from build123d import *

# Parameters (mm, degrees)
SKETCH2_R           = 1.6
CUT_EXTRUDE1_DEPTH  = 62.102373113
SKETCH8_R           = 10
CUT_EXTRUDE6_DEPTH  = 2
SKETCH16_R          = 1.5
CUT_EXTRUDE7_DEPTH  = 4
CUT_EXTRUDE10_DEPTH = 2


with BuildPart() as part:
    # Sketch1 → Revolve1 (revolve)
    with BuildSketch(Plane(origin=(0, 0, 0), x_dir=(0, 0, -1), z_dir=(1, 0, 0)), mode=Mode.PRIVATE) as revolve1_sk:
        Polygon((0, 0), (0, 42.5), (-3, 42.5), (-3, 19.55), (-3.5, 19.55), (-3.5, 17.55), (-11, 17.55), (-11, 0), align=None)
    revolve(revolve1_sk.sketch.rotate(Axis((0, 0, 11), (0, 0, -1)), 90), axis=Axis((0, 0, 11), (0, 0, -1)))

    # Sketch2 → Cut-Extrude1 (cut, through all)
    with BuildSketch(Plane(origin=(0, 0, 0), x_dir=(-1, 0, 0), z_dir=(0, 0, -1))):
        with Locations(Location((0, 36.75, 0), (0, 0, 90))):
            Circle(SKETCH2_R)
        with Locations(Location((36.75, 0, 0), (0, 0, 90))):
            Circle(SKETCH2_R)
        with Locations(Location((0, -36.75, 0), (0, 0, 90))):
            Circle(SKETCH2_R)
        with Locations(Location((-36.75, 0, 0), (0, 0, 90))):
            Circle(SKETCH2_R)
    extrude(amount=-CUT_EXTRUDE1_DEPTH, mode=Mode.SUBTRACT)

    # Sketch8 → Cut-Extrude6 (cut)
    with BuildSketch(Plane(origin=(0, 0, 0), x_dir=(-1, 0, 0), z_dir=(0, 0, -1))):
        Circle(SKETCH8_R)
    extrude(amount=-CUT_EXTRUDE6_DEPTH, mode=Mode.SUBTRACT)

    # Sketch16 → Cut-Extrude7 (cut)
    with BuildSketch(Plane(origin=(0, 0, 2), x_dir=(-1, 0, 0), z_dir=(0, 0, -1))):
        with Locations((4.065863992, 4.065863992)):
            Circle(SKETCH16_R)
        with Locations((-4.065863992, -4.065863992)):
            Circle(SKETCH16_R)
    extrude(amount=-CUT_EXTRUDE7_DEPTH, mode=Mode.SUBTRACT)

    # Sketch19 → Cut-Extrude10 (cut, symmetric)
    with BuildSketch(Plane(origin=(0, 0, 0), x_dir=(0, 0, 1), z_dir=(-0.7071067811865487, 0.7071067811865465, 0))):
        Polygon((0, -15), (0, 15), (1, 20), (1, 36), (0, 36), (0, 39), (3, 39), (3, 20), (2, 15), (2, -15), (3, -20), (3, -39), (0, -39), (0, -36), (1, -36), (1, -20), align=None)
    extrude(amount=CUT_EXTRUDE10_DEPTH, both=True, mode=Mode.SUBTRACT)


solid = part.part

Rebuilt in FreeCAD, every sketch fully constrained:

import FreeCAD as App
import Part
import Sketcher
from FreeCAD import Vector
Q = App.Units.Quantity

doc = App.newDocument("Part")
params = doc.addObject("Spreadsheet::Sheet", "Params")
for row, (alias, value) in enumerate([
    ("sketch1_width", "2 mm"),
    ("sketch1_height", "3 mm"),
    ("sketch1_height2", "11 mm"),
    ("sketch1_width2", "42.5 mm"),
    ("sketch1_height3", "0.5 mm"),
    ("revolution_angle", "360 deg"),
    ("sketch2_diameter", "3.2 mm"),
    ("sketch3_diameter", "20 mm"),
    ("pocket2_length", "2 mm"),
    ("sketch4_diameter", "3 mm"),
    ("pocket3_length", "4 mm"),
    ("sketch5_width", "1 mm"),
    ("sketch5_width2", "3 mm"),
    ("sketch5_height", "30 mm"),
    ("sketch5_height2", "16 mm"),
    ("pocket4_length", "4 mm"),
], start=1):
    params.set(f"A{row}", alias)
    params.set(f"B{row}", "=" + value)
    params.setAlias(f"B{row}", alias)

body = doc.addObject("PartDesign::Body", "Body")

sketch1 = body.newObject("Sketcher::SketchObject", "Sketch")
sketch1.AttachmentSupport = (doc.getObject("YZ_Plane"), [""])
sketch1.MapMode = "FlatFace"
sketch1.addGeometry(Part.LineSegment(Vector(0, 0, 0), Vector(42.5, 0, 0)), False)
sketch1.addGeometry(Part.LineSegment(Vector(42.5, 0, 0), Vector(42.5, 3, 0)), False)
sketch1.addGeometry(Part.LineSegment(Vector(42.5, 3, 0), Vector(19.55, 3, 0)), False)
sketch1.addGeometry(Part.LineSegment(Vector(19.55, 3, 0), Vector(19.55, 3.5, 0)), False)
sketch1.addGeometry(Part.LineSegment(Vector(19.55, 3.5, 0), Vector(17.55, 3.5, 0)), False)
sketch1.addGeometry(Part.LineSegment(Vector(17.55, 3.5, 0), Vector(17.55, 11, 0)), False)
sketch1.addGeometry(Part.LineSegment(Vector(17.55, 11, 0), Vector(0, 11, 0)), False)
sketch1.addGeometry(Part.LineSegment(Vector(0, 11, 0), Vector(0, 0, 0)), False)
sketch1.addConstraint(Sketcher.Constraint("Coincident", 0, 2, 1, 1))
sketch1.addConstraint(Sketcher.Constraint("Coincident", 1, 2, 2, 1))
sketch1.addConstraint(Sketcher.Constraint("Coincident", 2, 2, 3, 1))
sketch1.addConstraint(Sketcher.Constraint("Coincident", 3, 2, 4, 1))
sketch1.addConstraint(Sketcher.Constraint("Coincident", 4, 2, 5, 1))
sketch1.addConstraint(Sketcher.Constraint("Coincident", 5, 2, 6, 1))
sketch1.addConstraint(Sketcher.Constraint("Coincident", 6, 2, 7, 1))
sketch1.addConstraint(Sketcher.Constraint("Coincident", 7, 2, 0, 1))
sketch1.addConstraint(Sketcher.Constraint("Horizontal", 0))
sketch1.addConstraint(Sketcher.Constraint("Vertical", 1))
sketch1.addConstraint(Sketcher.Constraint("Horizontal", 2))
sketch1.addConstraint(Sketcher.Constraint("Vertical", 3))
sketch1.addConstraint(Sketcher.Constraint("Horizontal", 4))
sketch1.addConstraint(Sketcher.Constraint("Vertical", 5))
sketch1.addConstraint(Sketcher.Constraint("Horizontal", 6))
sketch1.addConstraint(Sketcher.Constraint("Vertical", 7))
sketch1.addConstraint(Sketcher.Constraint("Coincident", 7, 2, -1, 1))
sketch1.addConstraint(Sketcher.Constraint("DistanceX", 4, 2, 4, 1, Q("2 mm")))
sketch1.addConstraint(Sketcher.Constraint("DistanceY", 1, 1, 1, 2, Q("3 mm")))
sketch1.addConstraint(Sketcher.Constraint("DistanceY", 7, 2, 7, 1, Q("11 mm")))
sketch1.addConstraint(Sketcher.Constraint("DistanceX", 0, 1, 0, 2, Q("42.5 mm")))
sketch1.addConstraint(Sketcher.Constraint("DistanceY", 3, 1, 3, 2, Q("0.5 mm")))
sketch1.addConstraint(Sketcher.Constraint("DistanceX", 2, 2, 2, 1, Q("22.95 mm")))
sketch1.setExpression("Constraints[17]", "Params.sketch1_width")
sketch1.setExpression("Constraints[18]", "Params.sketch1_height")
sketch1.setExpression("Constraints[19]", "Params.sketch1_height2")
sketch1.setExpression("Constraints[20]", "Params.sketch1_width2")
sketch1.setExpression("Constraints[21]", "Params.sketch1_height3")
revolution = body.newObject("PartDesign::Revolution", "Revolution")
revolution.Profile = sketch1
revolution.ReferenceAxis = (sketch1, ["V_Axis"])
revolution.setExpression("Angle", "Params.revolution_angle")

sketch2 = body.newObject("Sketcher::SketchObject", "Sketch001")
sketch2.AttachmentSupport = (doc.getObject("XY_Plane"), [""])
sketch2.MapMode = "FlatFace"
sketch2.addGeometry(Part.Circle(Vector(0, 36.75, 0), Vector(0, 0, 1), 1.6), False)
sketch2.addGeometry(Part.Circle(Vector(-36.75, 0, 0), Vector(0, 0, 1), 1.6), False)
sketch2.addGeometry(Part.Circle(Vector(0, -36.75, 0), Vector(0, 0, 1), 1.6), False)
sketch2.addGeometry(Part.Circle(Vector(36.75, 0, 0), Vector(0, 0, 1), 1.6), False)
sketch2.addConstraint(Sketcher.Constraint("Equal", 0, 1))
sketch2.addConstraint(Sketcher.Constraint("Equal", 1, 2))
sketch2.addConstraint(Sketcher.Constraint("Equal", 2, 3))
sketch2.addConstraint(Sketcher.Constraint("Symmetric", 0, 3, 2, 3, -1, 1))
sketch2.addConstraint(Sketcher.Constraint("Symmetric", 1, 3, 3, 3, -1, 1))
sketch2.addConstraint(Sketcher.Constraint("PointOnObject", 0, 3, -2))
sketch2.addConstraint(Sketcher.Constraint("PointOnObject", 1, 3, -1))
sketch2.addConstraint(Sketcher.Constraint("Diameter", 0, Q("3.2 mm")))
sketch2.addConstraint(Sketcher.Constraint("DistanceY", 2, 3, 0, 3, Q("73.5 mm")))
sketch2.addConstraint(Sketcher.Constraint("DistanceX", 1, 3, 3, 3, Q("73.5 mm")))
sketch2.setExpression("Constraints[7]", "Params.sketch2_diameter")
pocket1 = body.newObject("PartDesign::Pocket", "Pocket")
pocket1.Profile = sketch2
pocket1.Type = "ThroughAll"
pocket1.Reversed = True

sketch3 = body.newObject("Sketcher::SketchObject", "Sketch002")
sketch3.AttachmentSupport = (doc.getObject("XY_Plane"), [""])
sketch3.MapMode = "FlatFace"
sketch3.addGeometry(Part.Circle(Vector(0, 0, 0), Vector(0, 0, 1), 10), False)
sketch3.addConstraint(Sketcher.Constraint("Coincident", 0, 3, -1, 1))
sketch3.addConstraint(Sketcher.Constraint("Diameter", 0, Q("20 mm")))
sketch3.setExpression("Constraints[1]", "Params.sketch3_diameter")
pocket2 = body.newObject("PartDesign::Pocket", "Pocket001")
pocket2.Profile = sketch3
pocket2.setExpression("Length", "Params.pocket2_length")
pocket2.Reversed = True

sketch4 = body.newObject("Sketcher::SketchObject", "Sketch003")
sketch4.AttachmentSupport = (doc.getObject("XY_Plane"), [""])
sketch4.MapMode = "FlatFace"
sketch4.AttachmentOffset = App.Placement(Vector(0, 0, 2), App.Rotation())
sketch4.addGeometry(Part.Circle(Vector(-4.065864, 4.065864, 0), Vector(0, 0, 1), 1.5), False)
sketch4.addGeometry(Part.Circle(Vector(4.065864, -4.065864, 0), Vector(0, 0, 1), 1.5), False)
sketch4.addConstraint(Sketcher.Constraint("Equal", 0, 1))
sketch4.addConstraint(Sketcher.Constraint("Symmetric", 0, 3, 1, 3, -1, 1))
sketch4.addConstraint(Sketcher.Constraint("Diameter", 0, Q("3 mm")))
sketch4.addConstraint(Sketcher.Constraint("DistanceX", 0, 3, -1, 1, Q("4.065864 mm")))
sketch4.addConstraint(Sketcher.Constraint("DistanceY", -1, 1, 0, 3, Q("4.065864 mm")))
sketch4.setExpression("Constraints[2]", "Params.sketch4_diameter")
pocket3 = body.newObject("PartDesign::Pocket", "Pocket002")
pocket3.Profile = sketch4
pocket3.setExpression("Length", "Params.pocket3_length")
pocket3.Reversed = True

sketch5 = body.newObject("Sketcher::SketchObject", "Sketch004")
sketch5.Placement = App.Placement(Vector(0, 0, 0), App.Rotation(Vector(0, 0, 1), Vector(0.707106781, 0.707106781, 0), Vector(-0.707106781, 0.707106781, 0), "ZXY"))
sketch5.addGeometry(Part.LineSegment(Vector(0, 15, 0), Vector(0, -15, 0)), False)
sketch5.addGeometry(Part.LineSegment(Vector(0, -15, 0), Vector(1, -20, 0)), False)
sketch5.addGeometry(Part.LineSegment(Vector(1, -20, 0), Vector(1, -36, 0)), False)
sketch5.addGeometry(Part.LineSegment(Vector(1, -36, 0), Vector(0, -36, 0)), False)
sketch5.addGeometry(Part.LineSegment(Vector(0, -36, 0), Vector(0, -39, 0)), False)
sketch5.addGeometry(Part.LineSegment(Vector(0, -39, 0), Vector(3, -39, 0)), False)
sketch5.addGeometry(Part.LineSegment(Vector(3, -39, 0), Vector(3, -20, 0)), False)
sketch5.addGeometry(Part.LineSegment(Vector(3, -20, 0), Vector(2, -15, 0)), False)
sketch5.addGeometry(Part.LineSegment(Vector(2, -15, 0), Vector(2, 15, 0)), False)
sketch5.addGeometry(Part.LineSegment(Vector(2, 15, 0), Vector(3, 20, 0)), False)
sketch5.addGeometry(Part.LineSegment(Vector(3, 20, 0), Vector(3, 39, 0)), False)
sketch5.addGeometry(Part.LineSegment(Vector(3, 39, 0), Vector(0, 39, 0)), False)
sketch5.addGeometry(Part.LineSegment(Vector(0, 39, 0), Vector(0, 36, 0)), False)
sketch5.addGeometry(Part.LineSegment(Vector(0, 36, 0), Vector(1, 36, 0)), False)
sketch5.addGeometry(Part.LineSegment(Vector(1, 36, 0), Vector(1, 20, 0)), False)
sketch5.addGeometry(Part.LineSegment(Vector(1, 20, 0), Vector(0, 15, 0)), False)
sketch5.addConstraint(Sketcher.Constraint("Coincident", 0, 2, 1, 1))
sketch5.addConstraint(Sketcher.Constraint("Coincident", 1, 2, 2, 1))
sketch5.addConstraint(Sketcher.Constraint("Coincident", 2, 2, 3, 1))
sketch5.addConstraint(Sketcher.Constraint("Coincident", 3, 2, 4, 1))
sketch5.addConstraint(Sketcher.Constraint("Coincident", 4, 2, 5, 1))
sketch5.addConstraint(Sketcher.Constraint("Coincident", 5, 2, 6, 1))
sketch5.addConstraint(Sketcher.Constraint("Coincident", 6, 2, 7, 1))
sketch5.addConstraint(Sketcher.Constraint("Coincident", 7, 2, 8, 1))
sketch5.addConstraint(Sketcher.Constraint("Coincident", 8, 2, 9, 1))
sketch5.addConstraint(Sketcher.Constraint("Coincident", 9, 2, 10, 1))
sketch5.addConstraint(Sketcher.Constraint("Coincident", 10, 2, 11, 1))
sketch5.addConstraint(Sketcher.Constraint("Coincident", 11, 2, 12, 1))
sketch5.addConstraint(Sketcher.Constraint("Coincident", 12, 2, 13, 1))
sketch5.addConstraint(Sketcher.Constraint("Coincident", 13, 2, 14, 1))
sketch5.addConstraint(Sketcher.Constraint("Coincident", 14, 2, 15, 1))
sketch5.addConstraint(Sketcher.Constraint("Coincident", 15, 2, 0, 1))
sketch5.addConstraint(Sketcher.Constraint("Vertical", 0))
sketch5.addConstraint(Sketcher.Constraint("Vertical", 2))
sketch5.addConstraint(Sketcher.Constraint("Horizontal", 3))
sketch5.addConstraint(Sketcher.Constraint("Vertical", 4))
sketch5.addConstraint(Sketcher.Constraint("Horizontal", 5))
sketch5.addConstraint(Sketcher.Constraint("Vertical", 6))
sketch5.addConstraint(Sketcher.Constraint("Vertical", 8))
sketch5.addConstraint(Sketcher.Constraint("Vertical", 10))
sketch5.addConstraint(Sketcher.Constraint("Horizontal", 11))
sketch5.addConstraint(Sketcher.Constraint("Vertical", 12))
sketch5.addConstraint(Sketcher.Constraint("Horizontal", 13))
sketch5.addConstraint(Sketcher.Constraint("Vertical", 14))
sketch5.addConstraint(Sketcher.Constraint("Symmetric", 4, 2, 11, 2, -1, 1))
sketch5.addConstraint(Sketcher.Constraint("Symmetric", 0, 2, 15, 2, -1, 1))
sketch5.addConstraint(Sketcher.Constraint("Symmetric", 6, 2, 9, 2, -1))
sketch5.addConstraint(Sketcher.Constraint("Symmetric", 3, 2, 12, 2, -1))
sketch5.addConstraint(Sketcher.Constraint("Symmetric", 1, 2, 14, 2, -1))
sketch5.addConstraint(Sketcher.Constraint("Parallel", 1, 7))
sketch5.addConstraint(Sketcher.Constraint("Parallel", 9, 15))
sketch5.addConstraint(Sketcher.Constraint("Horizontal", 1, 2, 6, 2))
sketch5.addConstraint(Sketcher.Constraint("Horizontal", 0, 2, 7, 2))
sketch5.addConstraint(Sketcher.Constraint("Equal", 11, 4))
sketch5.addConstraint(Sketcher.Constraint("DistanceX", 3, 2, 3, 1, Q("1 mm")))
sketch5.addConstraint(Sketcher.Constraint("DistanceX", 5, 1, 5, 2, Q("3 mm")))
sketch5.addConstraint(Sketcher.Constraint("DistanceY", 0, 2, 0, 1, Q("30 mm")))
sketch5.addConstraint(Sketcher.Constraint("DistanceY", 2, 2, 2, 1, Q("16 mm")))
sketch5.addConstraint(Sketcher.Constraint("DistanceY", 1, 2, -1, 1, Q("20 mm")))
sketch5.setExpression("Constraints[38]", "Params.sketch5_width")
sketch5.setExpression("Constraints[39]", "Params.sketch5_width2")
sketch5.setExpression("Constraints[40]", "Params.sketch5_height")
sketch5.setExpression("Constraints[41]", "Params.sketch5_height2")
pocket4 = body.newObject("PartDesign::Pocket", "Pocket003")
pocket4.Profile = sketch5
pocket4.setExpression("Length", "Params.pocket4_length")
pocket4.Midplane = True

doc.recompute()
